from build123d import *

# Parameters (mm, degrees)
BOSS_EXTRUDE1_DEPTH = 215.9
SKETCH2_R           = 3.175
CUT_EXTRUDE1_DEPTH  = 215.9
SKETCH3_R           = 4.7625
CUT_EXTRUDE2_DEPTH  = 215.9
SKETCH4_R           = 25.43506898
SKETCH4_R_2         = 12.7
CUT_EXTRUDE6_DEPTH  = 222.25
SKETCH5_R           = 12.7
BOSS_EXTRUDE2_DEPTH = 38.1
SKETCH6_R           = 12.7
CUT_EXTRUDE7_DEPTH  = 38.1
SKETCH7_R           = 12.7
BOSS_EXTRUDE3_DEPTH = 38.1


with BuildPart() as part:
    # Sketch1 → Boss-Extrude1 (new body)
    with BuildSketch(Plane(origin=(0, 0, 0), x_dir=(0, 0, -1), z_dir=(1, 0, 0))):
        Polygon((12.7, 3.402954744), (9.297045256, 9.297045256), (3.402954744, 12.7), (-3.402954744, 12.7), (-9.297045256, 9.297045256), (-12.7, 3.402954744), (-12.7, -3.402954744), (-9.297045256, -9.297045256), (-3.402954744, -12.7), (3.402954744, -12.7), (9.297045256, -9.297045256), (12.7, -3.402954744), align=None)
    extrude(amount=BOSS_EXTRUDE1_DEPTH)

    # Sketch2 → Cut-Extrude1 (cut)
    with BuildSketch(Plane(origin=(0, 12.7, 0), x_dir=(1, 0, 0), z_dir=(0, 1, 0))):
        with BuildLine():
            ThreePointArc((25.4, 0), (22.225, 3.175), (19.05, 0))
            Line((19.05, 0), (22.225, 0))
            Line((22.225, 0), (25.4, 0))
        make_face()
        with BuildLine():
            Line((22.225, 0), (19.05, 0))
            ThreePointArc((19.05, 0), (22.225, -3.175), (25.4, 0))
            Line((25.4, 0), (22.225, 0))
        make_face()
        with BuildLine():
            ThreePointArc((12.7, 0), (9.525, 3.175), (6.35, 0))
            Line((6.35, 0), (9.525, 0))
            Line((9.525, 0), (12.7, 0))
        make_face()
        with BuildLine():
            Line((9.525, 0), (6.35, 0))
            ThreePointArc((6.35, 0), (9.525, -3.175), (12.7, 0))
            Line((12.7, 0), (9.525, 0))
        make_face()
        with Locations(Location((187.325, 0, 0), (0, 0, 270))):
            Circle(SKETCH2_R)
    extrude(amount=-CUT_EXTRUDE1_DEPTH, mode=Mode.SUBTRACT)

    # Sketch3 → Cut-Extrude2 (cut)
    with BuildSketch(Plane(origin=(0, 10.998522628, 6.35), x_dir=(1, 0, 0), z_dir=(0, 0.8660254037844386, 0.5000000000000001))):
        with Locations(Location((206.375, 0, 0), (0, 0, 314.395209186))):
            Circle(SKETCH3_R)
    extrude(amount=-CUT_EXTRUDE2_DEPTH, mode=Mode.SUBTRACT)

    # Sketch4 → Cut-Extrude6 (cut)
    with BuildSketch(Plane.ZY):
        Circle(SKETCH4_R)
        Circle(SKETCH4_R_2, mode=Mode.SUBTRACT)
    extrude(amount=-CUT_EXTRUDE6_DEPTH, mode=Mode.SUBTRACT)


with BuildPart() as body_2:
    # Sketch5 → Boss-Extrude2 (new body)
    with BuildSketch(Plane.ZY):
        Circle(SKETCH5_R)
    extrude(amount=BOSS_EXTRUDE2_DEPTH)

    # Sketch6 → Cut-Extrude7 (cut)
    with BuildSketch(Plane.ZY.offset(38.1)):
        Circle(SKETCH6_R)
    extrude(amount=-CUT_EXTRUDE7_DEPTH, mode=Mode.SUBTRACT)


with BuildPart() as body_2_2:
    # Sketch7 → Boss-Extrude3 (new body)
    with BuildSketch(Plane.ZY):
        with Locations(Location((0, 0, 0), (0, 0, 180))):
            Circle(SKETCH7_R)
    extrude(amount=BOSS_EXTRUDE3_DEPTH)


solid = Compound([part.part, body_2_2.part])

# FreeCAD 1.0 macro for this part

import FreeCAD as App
import Part
import Sketcher
Q = App.Units.Quantity

doc = App.newDocument("Part")
params = doc.addObject("Spreadsheet::Sheet", "Params")
for row, (alias, value) in enumerate([
    ("pad1_length", "8.5 in"),
    ("sketch2_diameter", "0.25 in"),
    ("pocket1_length", "8.5 in"),
    ("sketch3_diameter", "0.375 in"),
    ("pocket2_length", "8.5 in"),
    ("sketch4_diameter", "1 in"),
    ("pocket3_length", "8.75 in"),
    ("sketch5_diameter", "1 in"),
    ("pad2_length", "1.5 in"),
    ("sketch6_diameter", "1 in"),
    ("pocket4_length", "1.5 in"),
    ("sketch7_diameter", "1 in"),
    ("pad3_length", "1.5 in"),
], start=1):
    params.set(f"A{row}", alias)
    params.set(f"B{row}", "=" + value)
    params.setAlias(f"B{row}", alias)

body = doc.addObject("PartDesign::Body", "Body")

# Sketch on YZ plane
sketch1 = body.newObject("Sketcher::SketchObject", "Sketch")
sketch1.AttachmentSupport = (doc.getObject("YZ_Plane"), [""])
sketch1.MapMode = "FlatFace"
sketch1.addGeometry([
    Part.LineSegment(App.Vector(3, -13, 0), App.Vector(9, -9, 0)),  # 0
    Part.LineSegment(App.Vector(9, -9, 0), App.Vector(13, -3, 0)),  # 1
    Part.LineSegment(App.Vector(13, -3, 0), App.Vector(13, 3, 0)),  # 2
    Part.LineSegment(App.Vector(13, 3, 0), App.Vector(9, 9, 0)),  # 3
    Part.LineSegment(App.Vector(9, 9, 0), App.Vector(3, 13, 0)),  # 4
    Part.LineSegment(App.Vector(3, 13, 0), App.Vector(-3, 13, 0)),  # 5
    Part.LineSegment(App.Vector(-3, 13, 0), App.Vector(-9, 9, 0)),  # 6
    Part.LineSegment(App.Vector(-9, 9, 0), App.Vector(-13, 3, 0)),  # 7
    Part.LineSegment(App.Vector(-13, 3, 0), App.Vector(-13, -3, 0)),  # 8
    Part.LineSegment(App.Vector(-13, -3, 0), App.Vector(-9, -9, 0)),  # 9
    Part.LineSegment(App.Vector(-9, -9, 0), App.Vector(-3, -13, 0)),  # 10
    Part.LineSegment(App.Vector(-3, -13, 0), App.Vector(3, -13, 0)),  # 11
], False)
sketch1.addConstraint([
    Sketcher.Constraint("Coincident", 0, 2, 1, 1),
    Sketcher.Constraint("Coincident", 1, 2, 2, 1),
    Sketcher.Constraint("Coincident", 2, 2, 3, 1),
    Sketcher.Constraint("Coincident", 3, 2, 4, 1),
    Sketcher.Constraint("Coincident", 4, 2, 5, 1),
    Sketcher.Constraint("Coincident", 5, 2, 6, 1),
    Sketcher.Constraint("Coincident", 6, 2, 7, 1),
    Sketcher.Constraint("Coincident", 7, 2, 8, 1),
    Sketcher.Constraint("Coincident", 8, 2, 9, 1),
    Sketcher.Constraint("Coincident", 9, 2, 10, 1),
    Sketcher.Constraint("Coincident", 10, 2, 11, 1),
    Sketcher.Constraint("Coincident", 11, 2, 0, 1),
    Sketcher.Constraint("Vertical", 2),
    Sketcher.Constraint("Horizontal", 5),
    Sketcher.Constraint("Vertical", 8),
    Sketcher.Constraint("Horizontal", 11),
    Sketcher.Constraint("Symmetric", 0, 2, 6, 2, -1, 1),
    Sketcher.Constraint("Symmetric", 1, 2, 7, 2, -1, 1),
    Sketcher.Constraint("Symmetric", 3, 2, 9, 2, -1, 1),
    Sketcher.Constraint("Symmetric", 4, 2, 10, 2, -1, 1),
    Sketcher.Constraint("Symmetric", 3, 2, 6, 2, -2),
    Sketcher.Constraint("Perpendicular", 0, 3),
    Sketcher.Constraint("Perpendicular", 1, 4),
    Sketcher.Constraint("Perpendicular", 3, 6),
    Sketcher.Constraint("Perpendicular", 6, 9),
    Sketcher.Constraint("Horizontal", 2, 2, 7, 2),
    Sketcher.Constraint("Equal", 11, 2),
    Sketcher.Constraint("Equal", 0, 1),
    Sketcher.Constraint("Angle", 0, Q("30 deg")),
    Sketcher.Constraint("DistanceX", -1, 1, 1, 2, Q("0.5 in")),
    Sketcher.Constraint("DistanceY", 0, 2, 2, 2, Q("0.5 in")),
])
pad1 = body.newObject("PartDesign::Pad", "Pad")
pad1.Profile = sketch1
pad1.setExpression("Length", "Params.pad1_length")

# Sketch on XZ plane
sketch2 = body.newObject("Sketcher::SketchObject", "Sketch001")
sketch2.AttachmentSupport = (doc.getObject("XZ_Plane"), [""])
sketch2.MapMode = "FlatFace"
sketch2.AttachmentOffset = App.Placement(App.Vector(0, 0, -0.5 * 25.4), App.Rotation())
sketch2.addGeometry([
    Part.Circle(App.Vector(22.2, 0, 0), App.Vector(0, 0, 1), 3.2),
    Part.Circle(App.Vector(9.5, 0, 0), App.Vector(0, 0, 1), 3.2),
    Part.Circle(App.Vector(187.3, 0, 0), App.Vector(0, 0, 1), 3.2),
], False)
sketch2.addConstraint([
    Sketcher.Constraint("Equal", 0, 1),
    Sketcher.Constraint("Equal", 1, 2),
    Sketcher.Constraint("PointOnObject", 0, 3, -1),
    Sketcher.Constraint("PointOnObject", 1, 3, -1),
    Sketcher.Constraint("PointOnObject", 2, 3, -1),
    Sketcher.Constraint("Diameter", 0, Q("0.25 in")),
    Sketcher.Constraint("DistanceX", 1, 3, 2, 3, Q("7 in")),
    Sketcher.Constraint("DistanceX", 1, 3, 0, 3, Q("0.5 in")),
    Sketcher.Constraint("DistanceX", -1, 1, 0, 3, Q("0.875 in")),
])
sketch2.setExpression("Constraints[5]", "Params.sketch2_diameter")
pocket1 = body.newObject("PartDesign::Pocket", "Pocket")
pocket1.Profile = sketch2
pocket1.setExpression("Length", "Params.pocket1_length")
pocket1.Reversed = True

# Sketch on an angled plane
sketch3 = body.newObject("Sketcher::SketchObject", "Sketch002")
sketch3.Placement = App.Placement(App.Vector(0, 10.998523, 6.35), App.Rotation(App.Vector(1, 0, 0), App.Vector(0, 0.5, -0.866025404), App.Vector(0, 0.866025404, 0.5), "ZXY"))
sketch3.addGeometry(Part.Circle(App.Vector(206.4, 0, 0), App.Vector(0, 0, 1), 4.8), False)
sketch3.addConstraint([
    Sketcher.Constraint("PointOnObject", 0, 3, -1),
    Sketcher.Constraint("Diameter", 0, Q("0.375 in")),
    Sketcher.Constraint("DistanceX", -1, 1, 0, 3, Q("8.125 in")),
])
sketch3.setExpression("Constraints[1]", "Params.sketch3_diameter")
pocket2 = body.newObject("PartDesign::Pocket", "Pocket001")
pocket2.Profile = sketch3
pocket2.setExpression("Length", "Params.pocket2_length")

# Sketch on YZ plane
sketch4 = body.newObject("Sketcher::SketchObject", "Sketch003")
sketch4.AttachmentSupport = (doc.getObject("YZ_Plane"), [""])
sketch4.MapMode = "FlatFace"
sketch4.addGeometry([
    Part.Circle(App.Vector(0, 0, 0), App.Vector(0, 0, 1), 25),
    Part.Circle(App.Vector(0, 0, 0), App.Vector(0, 0, 1), 13),
], False)
sketch4.addConstraint([
    Sketcher.Constraint("Coincident", 0, 3, -1, 1),
    Sketcher.Constraint("Coincident", 1, 3, -1, 1),
    Sketcher.Constraint("Diameter", 1, Q("1 in")),
    Sketcher.Constraint("Diameter", 0, 50.870138),
])
sketch4.setExpression("Constraints[2]", "Params.sketch4_diameter")
pocket3 = body.newObject("PartDesign::Pocket", "Pocket002")
pocket3.Profile = sketch4
pocket3.setExpression("Length", "Params.pocket3_length")
pocket3.Reversed = True
body2 = doc.addObject("PartDesign::Body", "Body001")

# Sketch on YZ plane
sketch5 = body2.newObject("Sketcher::SketchObject", "Sketch004")
sketch5.AttachmentSupport = (doc.getObject("YZ_Plane001"), [""])
sketch5.MapMode = "FlatFace"
sketch5.addGeometry(Part.Circle(App.Vector(0, 0, 0), App.Vector(0, 0, 1), 13), False)
sketch5.addConstraint([
    Sketcher.Constraint("Coincident", 0, 3, -1, 1),
    Sketcher.Constraint("Diameter", 0, Q("1 in")),
])
sketch5.setExpression("Constraints[1]", "Params.sketch5_diameter")
pad2 = body2.newObject("PartDesign::Pad", "Pad001")
pad2.Profile = sketch5
pad2.setExpression("Length", "Params.pad2_length")
pad2.Reversed = True

# Sketch on YZ plane
sketch6 = body2.newObject("Sketcher::SketchObject", "Sketch005")
sketch6.AttachmentSupport = (doc.getObject("YZ_Plane001"), [""])
sketch6.MapMode = "FlatFace"
sketch6.AttachmentOffset = App.Placement(App.Vector(0, 0, -1.5 * 25.4), App.Rotation())
sketch6.addGeometry(Part.Circle(App.Vector(0, 0, 0), App.Vector(0, 0, 1), 13), False)
sketch6.addConstraint([
    Sketcher.Constraint("Coincident", 0, 3, -1, 1),
    Sketcher.Constraint("Diameter", 0, Q("1 in")),
])
sketch6.setExpression("Constraints[1]", "Params.sketch6_diameter")
pocket4 = body2.newObject("PartDesign::Pocket", "Pocket003")
pocket4.Profile = sketch6
pocket4.setExpression("Length", "Params.pocket4_length")
pocket4.Reversed = True
body3 = doc.addObject("PartDesign::Body", "Body002")

# Sketch on YZ plane
sketch7 = body3.newObject("Sketcher::SketchObject", "Sketch006")
sketch7.AttachmentSupport = (doc.getObject("YZ_Plane002"), [""])
sketch7.MapMode = "FlatFace"
sketch7.addGeometry(Part.Circle(App.Vector(0, 0, 0), App.Vector(0, 0, 1), 13), False)
sketch7.addConstraint([
    Sketcher.Constraint("Coincident", 0, 3, -1, 1),
    Sketcher.Constraint("Diameter", 0, Q("1 in")),
])
sketch7.setExpression("Constraints[1]", "Params.sketch7_diameter")
pad3 = body3.newObject("PartDesign::Pad", "Pad002")
pad3.Profile = sketch7
pad3.setExpression("Length", "Params.pad3_length")
pad3.Reversed = True

doc.recompute()
